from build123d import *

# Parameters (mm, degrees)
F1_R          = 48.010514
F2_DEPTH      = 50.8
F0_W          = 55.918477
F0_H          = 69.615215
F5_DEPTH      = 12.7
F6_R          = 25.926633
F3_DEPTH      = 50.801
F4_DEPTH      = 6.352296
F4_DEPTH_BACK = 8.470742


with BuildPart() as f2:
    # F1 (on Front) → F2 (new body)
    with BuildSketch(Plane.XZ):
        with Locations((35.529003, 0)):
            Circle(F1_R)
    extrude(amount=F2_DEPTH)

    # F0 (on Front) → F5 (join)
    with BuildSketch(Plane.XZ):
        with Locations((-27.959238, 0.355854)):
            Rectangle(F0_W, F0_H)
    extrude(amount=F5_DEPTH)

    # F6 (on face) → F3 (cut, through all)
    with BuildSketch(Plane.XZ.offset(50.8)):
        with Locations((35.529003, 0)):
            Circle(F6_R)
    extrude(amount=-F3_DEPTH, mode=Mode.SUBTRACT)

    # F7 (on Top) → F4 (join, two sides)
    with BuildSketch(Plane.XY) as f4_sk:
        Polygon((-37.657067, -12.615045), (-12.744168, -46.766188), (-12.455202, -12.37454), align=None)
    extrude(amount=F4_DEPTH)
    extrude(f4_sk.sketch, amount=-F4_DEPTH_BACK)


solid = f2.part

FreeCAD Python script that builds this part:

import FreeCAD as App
import Part
import Sketcher

V = App.Vector
Q = App.Units.Quantity


def add_polygon(sketch, points):
    """Adds a closed chain of lines whose ends are joined by coincident constraints."""
    first, n = sketch.GeometryCount, len(points)
    for a, b in zip(points, points[1:] + points[:1]):
        sketch.addGeometry(Part.LineSegment(App.Vector(*a, 0), App.Vector(*b, 0)), False)
    for i in range(n):
        sketch.addConstraint(Sketcher.Constraint("Coincident", first + i, 2, first + (i + 1) % n, 1))

doc = App.newDocument("Part")
body = doc.addObject("PartDesign::Body", "Body")

sketch1 = doc.addObject("Sketcher::SketchObject", "Sketch")
body.addObject(sketch1)
sketch1.AttachmentSupport = (doc.XZ_Plane, [""])
sketch1.MapMode = "FlatFace"
sketch1.addGeometry(Part.Circle(V(36, 0, 0), V(0, 0, 1), 48), False)
sketch1.addConstraint([
    Sketcher.Constraint("PointOnObject", 0, 3, -1),
    Sketcher.Constraint("Diameter", 0, 96.021028),
    Sketcher.Constraint("DistanceX", -1, 1, 0, 3, 35.529003),
])
pad1 = doc.addObject("PartDesign::Pad", "Pad")
body.addObject(pad1)
pad1.Profile = sketch1
pad1.Length = Q("2 in")

sketch2 = doc.addObject("Sketcher::SketchObject", "Sketch001")
body.addObject(sketch2)
sketch2.AttachmentSupport = (doc.XZ_Plane, [""])
sketch2.MapMode = "FlatFace"
add_polygon(sketch2, [(-56, 35), (-56, -34), (0, -34), (0, 35)])
sketch2.addConstraint([
    Sketcher.Constraint("Vertical", 0),
    Sketcher.Constraint("Horizontal", 1),
    Sketcher.Constraint("Vertical", 2),
    Sketcher.Constraint("Horizontal", 3),
    Sketcher.Constraint("PointOnObject", 1, 2, -2),
    Sketcher.Constraint("DistanceX", 1, 1, 1, 2, 55.918477),
    Sketcher.Constraint("DistanceY", 0, 2, 0, 1, 69.615215),
    Sketcher.Constraint("DistanceY", -1, 1, 2, 2, 35.163461),
])
pad2 = doc.addObject("PartDesign::Pad", "Pad001")
body.addObject(pad2)
pad2.Profile = sketch2
pad2.Length = Q("0.5 in")

sketch3 = doc.addObject("Sketcher::SketchObject", "Sketch002")
body.addObject(sketch3)
sketch3.AttachmentSupport = (doc.XZ_Plane, [""])
sketch3.MapMode = "FlatFace"
sketch3.AttachmentOffset = App.Placement(V(0, 0, 2 * 25.4), App.Rotation())
sketch3.addGeometry(Part.Circle(V(36, 0, 0), V(0, 0, 1), 26), False)
sketch3.addConstraint([
    Sketcher.Constraint("PointOnObject", 0, 3, -1),
    Sketcher.Constraint("Diameter", 0, 51.853266),
    Sketcher.Constraint("DistanceX", -1, 1, 0, 3, 35.529003),
])
pocket1 = doc.addObject("PartDesign::Pocket", "Pocket")
body.addObject(pocket1)
pocket1.Profile = sketch3
pocket1.Type = "ThroughAll"

sketch4 = doc.addObject("Sketcher::SketchObject", "Sketch003")
body.addObject(sketch4)
sketch4.AttachmentSupport = (doc.XY_Plane, [""])
sketch4.MapMode = "FlatFace"
add_polygon(sketch4, [(-38, -13), (-13, -47), (-12, -12)])
sketch4.addConstraint([
    Sketcher.Constraint("DistanceX", 2, 2, 0, 2, 24.912899),
    Sketcher.Constraint("Distance", 0, 42.272368),
    Sketcher.Constraint("Distance", 1, 34.392862),
    Sketcher.Constraint("DistanceY", 1, 2, -1, 1, 12.37454),
    Sketcher.Constraint("DistanceY", 0, 2, 1, 2, 34.391648),
    Sketcher.Constraint("DistanceX", 0, 2, -1, 1, 12.744168),
])
pad3 = doc.addObject("PartDesign::Pad", "Pad002")
body.addObject(pad3)
pad3.Profile = sketch4
pad3.Type = "TwoLengths"
pad3.Length = 6.352296
pad3.Length2 = 8.470742

doc.recompute()
